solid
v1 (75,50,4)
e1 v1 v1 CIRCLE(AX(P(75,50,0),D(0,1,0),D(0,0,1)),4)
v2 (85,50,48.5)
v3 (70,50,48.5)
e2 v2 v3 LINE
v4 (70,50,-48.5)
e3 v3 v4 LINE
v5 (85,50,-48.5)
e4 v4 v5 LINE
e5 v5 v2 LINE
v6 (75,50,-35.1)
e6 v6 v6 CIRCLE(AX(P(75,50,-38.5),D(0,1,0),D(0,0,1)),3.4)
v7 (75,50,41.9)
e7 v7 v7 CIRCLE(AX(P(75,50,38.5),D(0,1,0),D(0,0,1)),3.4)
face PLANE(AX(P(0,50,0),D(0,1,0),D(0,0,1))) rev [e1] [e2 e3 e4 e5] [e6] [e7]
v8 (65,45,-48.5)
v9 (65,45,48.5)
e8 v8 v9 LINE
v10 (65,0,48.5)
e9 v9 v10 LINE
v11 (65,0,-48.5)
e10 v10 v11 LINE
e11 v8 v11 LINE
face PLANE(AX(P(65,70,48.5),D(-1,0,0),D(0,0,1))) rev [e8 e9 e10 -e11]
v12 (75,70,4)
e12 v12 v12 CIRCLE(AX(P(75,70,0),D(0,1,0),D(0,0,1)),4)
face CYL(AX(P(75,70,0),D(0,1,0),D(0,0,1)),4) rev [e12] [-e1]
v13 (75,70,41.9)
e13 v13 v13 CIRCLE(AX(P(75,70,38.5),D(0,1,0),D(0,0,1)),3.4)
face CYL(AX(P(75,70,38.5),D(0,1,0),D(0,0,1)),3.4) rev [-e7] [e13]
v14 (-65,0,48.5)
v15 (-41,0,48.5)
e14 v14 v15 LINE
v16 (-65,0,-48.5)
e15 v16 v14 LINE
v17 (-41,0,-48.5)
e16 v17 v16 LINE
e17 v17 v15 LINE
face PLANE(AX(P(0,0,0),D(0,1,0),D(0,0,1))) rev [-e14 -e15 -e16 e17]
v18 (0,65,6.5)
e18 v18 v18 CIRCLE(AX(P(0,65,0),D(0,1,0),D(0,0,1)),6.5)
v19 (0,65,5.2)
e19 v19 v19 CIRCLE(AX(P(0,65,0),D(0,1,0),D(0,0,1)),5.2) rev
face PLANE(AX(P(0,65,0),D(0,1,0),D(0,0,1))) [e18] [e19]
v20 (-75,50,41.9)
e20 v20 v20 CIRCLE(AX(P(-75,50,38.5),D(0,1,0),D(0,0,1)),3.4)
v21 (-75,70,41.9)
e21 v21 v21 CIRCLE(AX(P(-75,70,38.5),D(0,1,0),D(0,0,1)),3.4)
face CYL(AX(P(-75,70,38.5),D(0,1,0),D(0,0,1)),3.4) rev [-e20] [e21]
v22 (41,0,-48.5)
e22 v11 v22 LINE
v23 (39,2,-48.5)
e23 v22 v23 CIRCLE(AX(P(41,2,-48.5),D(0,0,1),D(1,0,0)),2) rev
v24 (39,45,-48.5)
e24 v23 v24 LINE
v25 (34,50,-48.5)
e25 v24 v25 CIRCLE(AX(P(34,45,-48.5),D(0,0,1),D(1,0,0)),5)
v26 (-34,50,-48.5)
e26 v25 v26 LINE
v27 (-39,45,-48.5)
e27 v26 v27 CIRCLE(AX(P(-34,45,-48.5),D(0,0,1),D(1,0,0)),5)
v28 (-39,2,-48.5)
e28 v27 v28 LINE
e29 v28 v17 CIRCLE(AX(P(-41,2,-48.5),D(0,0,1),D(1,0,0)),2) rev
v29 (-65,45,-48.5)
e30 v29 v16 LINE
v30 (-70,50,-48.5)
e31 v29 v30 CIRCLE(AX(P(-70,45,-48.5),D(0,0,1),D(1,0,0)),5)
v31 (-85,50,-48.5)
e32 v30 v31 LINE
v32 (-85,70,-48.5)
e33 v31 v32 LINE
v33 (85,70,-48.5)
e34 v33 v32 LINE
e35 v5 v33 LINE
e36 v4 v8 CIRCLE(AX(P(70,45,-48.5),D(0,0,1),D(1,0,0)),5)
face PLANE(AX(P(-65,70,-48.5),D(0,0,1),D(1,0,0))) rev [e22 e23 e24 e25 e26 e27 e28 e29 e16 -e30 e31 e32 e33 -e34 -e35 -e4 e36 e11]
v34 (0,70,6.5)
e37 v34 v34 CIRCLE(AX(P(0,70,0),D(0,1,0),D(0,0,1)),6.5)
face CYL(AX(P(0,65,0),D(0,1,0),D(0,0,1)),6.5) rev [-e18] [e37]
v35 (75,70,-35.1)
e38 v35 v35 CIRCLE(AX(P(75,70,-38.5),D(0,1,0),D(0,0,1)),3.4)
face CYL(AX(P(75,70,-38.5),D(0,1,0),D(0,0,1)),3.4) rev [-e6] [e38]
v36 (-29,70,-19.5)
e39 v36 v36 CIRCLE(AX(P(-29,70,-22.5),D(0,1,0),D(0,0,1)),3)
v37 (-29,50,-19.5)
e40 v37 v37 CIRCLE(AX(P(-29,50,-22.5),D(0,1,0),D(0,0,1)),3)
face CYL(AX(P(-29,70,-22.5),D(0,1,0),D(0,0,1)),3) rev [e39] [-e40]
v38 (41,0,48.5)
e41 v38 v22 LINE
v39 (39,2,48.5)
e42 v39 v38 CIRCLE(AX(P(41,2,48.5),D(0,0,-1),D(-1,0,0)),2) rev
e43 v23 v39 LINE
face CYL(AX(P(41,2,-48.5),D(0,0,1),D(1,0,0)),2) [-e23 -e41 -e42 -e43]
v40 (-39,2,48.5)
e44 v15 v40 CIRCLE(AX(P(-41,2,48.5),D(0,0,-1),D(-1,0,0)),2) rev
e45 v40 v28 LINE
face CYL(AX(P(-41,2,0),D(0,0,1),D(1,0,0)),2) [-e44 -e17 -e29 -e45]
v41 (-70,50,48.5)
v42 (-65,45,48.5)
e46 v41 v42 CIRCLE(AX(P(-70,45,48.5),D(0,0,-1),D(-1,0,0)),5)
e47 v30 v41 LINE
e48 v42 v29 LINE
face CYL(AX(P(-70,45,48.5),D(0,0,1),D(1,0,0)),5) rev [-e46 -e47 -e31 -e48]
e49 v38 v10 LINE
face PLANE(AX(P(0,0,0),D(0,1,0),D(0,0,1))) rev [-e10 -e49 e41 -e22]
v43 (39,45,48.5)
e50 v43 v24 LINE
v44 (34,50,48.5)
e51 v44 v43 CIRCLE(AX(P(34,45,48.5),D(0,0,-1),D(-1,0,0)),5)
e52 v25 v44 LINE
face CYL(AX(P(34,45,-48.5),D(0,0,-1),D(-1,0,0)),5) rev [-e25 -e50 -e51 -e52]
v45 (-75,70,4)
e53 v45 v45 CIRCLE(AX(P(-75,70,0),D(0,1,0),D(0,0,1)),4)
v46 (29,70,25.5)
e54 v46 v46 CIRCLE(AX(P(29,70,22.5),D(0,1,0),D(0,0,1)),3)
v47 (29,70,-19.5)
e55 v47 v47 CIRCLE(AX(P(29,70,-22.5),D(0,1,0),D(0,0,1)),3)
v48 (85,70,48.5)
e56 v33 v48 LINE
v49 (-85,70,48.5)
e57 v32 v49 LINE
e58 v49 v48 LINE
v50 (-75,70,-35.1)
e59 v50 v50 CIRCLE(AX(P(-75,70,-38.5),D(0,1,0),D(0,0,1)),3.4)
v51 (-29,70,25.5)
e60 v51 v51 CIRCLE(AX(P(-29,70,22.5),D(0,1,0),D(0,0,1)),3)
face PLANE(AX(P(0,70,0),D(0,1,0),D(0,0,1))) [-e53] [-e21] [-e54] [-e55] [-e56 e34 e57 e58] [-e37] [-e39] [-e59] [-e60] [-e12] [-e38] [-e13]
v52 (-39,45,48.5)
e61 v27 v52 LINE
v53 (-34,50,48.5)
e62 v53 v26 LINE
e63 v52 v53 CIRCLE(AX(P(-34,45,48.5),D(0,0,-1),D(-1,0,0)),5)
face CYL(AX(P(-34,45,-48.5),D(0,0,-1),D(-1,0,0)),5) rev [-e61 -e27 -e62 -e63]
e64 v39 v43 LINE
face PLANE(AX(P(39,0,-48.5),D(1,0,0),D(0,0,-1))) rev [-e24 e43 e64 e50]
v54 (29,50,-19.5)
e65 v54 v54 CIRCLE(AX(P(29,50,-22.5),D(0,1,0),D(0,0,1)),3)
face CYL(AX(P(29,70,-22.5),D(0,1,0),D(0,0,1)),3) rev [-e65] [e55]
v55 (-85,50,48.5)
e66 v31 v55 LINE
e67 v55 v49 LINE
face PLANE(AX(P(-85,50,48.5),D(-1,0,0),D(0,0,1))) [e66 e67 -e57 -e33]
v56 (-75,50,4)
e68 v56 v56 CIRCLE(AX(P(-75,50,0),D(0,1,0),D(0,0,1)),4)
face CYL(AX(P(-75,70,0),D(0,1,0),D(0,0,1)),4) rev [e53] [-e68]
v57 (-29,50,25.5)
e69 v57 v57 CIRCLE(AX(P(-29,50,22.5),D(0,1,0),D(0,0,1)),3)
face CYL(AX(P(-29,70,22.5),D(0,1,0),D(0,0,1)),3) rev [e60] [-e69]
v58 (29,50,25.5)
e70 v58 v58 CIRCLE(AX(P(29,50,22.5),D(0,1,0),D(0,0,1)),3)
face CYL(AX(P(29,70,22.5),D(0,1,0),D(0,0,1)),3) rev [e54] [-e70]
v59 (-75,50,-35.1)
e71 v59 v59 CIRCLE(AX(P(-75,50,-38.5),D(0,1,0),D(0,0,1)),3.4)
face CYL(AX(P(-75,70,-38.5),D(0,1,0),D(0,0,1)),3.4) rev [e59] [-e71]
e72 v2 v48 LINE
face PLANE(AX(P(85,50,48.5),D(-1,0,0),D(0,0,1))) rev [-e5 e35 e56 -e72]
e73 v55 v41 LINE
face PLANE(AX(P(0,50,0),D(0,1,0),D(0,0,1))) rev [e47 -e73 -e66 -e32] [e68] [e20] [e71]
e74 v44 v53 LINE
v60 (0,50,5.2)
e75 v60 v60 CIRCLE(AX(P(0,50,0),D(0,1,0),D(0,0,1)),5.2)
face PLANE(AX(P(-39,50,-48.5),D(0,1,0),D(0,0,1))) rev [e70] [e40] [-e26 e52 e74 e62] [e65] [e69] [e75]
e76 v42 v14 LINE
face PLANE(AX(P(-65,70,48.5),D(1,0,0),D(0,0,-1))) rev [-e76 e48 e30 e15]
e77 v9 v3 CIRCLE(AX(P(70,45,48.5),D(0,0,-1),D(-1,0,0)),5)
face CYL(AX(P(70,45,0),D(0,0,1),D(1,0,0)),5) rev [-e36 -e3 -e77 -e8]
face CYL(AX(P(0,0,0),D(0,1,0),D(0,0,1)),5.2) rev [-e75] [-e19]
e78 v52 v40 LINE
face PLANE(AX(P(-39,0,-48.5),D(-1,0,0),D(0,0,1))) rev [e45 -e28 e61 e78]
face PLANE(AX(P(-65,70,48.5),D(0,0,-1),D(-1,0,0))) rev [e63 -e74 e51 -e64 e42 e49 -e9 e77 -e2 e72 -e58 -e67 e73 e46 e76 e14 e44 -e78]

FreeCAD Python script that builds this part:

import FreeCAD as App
import Part
import Sketcher
from FreeCAD import Vector


def edges_at(feature, points):
    """Names of the edges that pass closest to the given points."""
    edges = feature.Shape.Edges
    near = lambda p: min(range(len(edges)), key=lambda i: edges[i].distToShape(Part.Vertex(*p))[0])
    return sorted({f"Edge{near(p) + 1}" for p in points})


def add_polygon(sketch, points):
    """Adds a closed chain of lines whose ends are joined by coincident constraints."""
    first, n = sketch.GeometryCount, len(points)
    for a, b in zip(points, points[1:] + points[:1]):
        sketch.addGeometry(Part.LineSegment(App.Vector(*a, 0), App.Vector(*b, 0)), False)
    for i in range(n):
        sketch.addConstraint(Sketcher.Constraint("Coincident", first + i, 2, first + (i + 1) % n, 1))

doc = App.newDocument("Part")
body = doc.addObject("PartDesign::Body", "Body")

# Sketch on XZ plane
sketch1 = body.newObject("Sketcher::SketchObject", "Sketch")
sketch1.AttachmentSupport = (doc.getObject("XZ_Plane"), [""])
sketch1.MapMode = "FlatFace"
add_polygon(sketch1, [(-65, -48.5), (-65, 48.5), (65, 48.5), (65, -48.5)])  # lines 0-3
sketch1.addConstraint([
    Sketcher.Constraint("Vertical", 0),
    Sketcher.Constraint("Horizontal", 1),
    Sketcher.Constraint("Vertical", 2),
    Sketcher.Constraint("Horizontal", 3),
    Sketcher.Constraint("Symmetric", 0, 2, 2, 2, -1, 1),
    Sketcher.Constraint("DistanceX", 1, 1, 1, 2, 130.0),
    Sketcher.Constraint("DistanceY", 0, 1, 0, 2, 97.0),
])
pad1 = body.newObject("PartDesign::Pad", "Pad")
pad1.Profile = sketch1
pad1.Length = 70
pad1.Reversed = True

# Sketch on XY plane
sketch2 = body.newObject("Sketcher::SketchObject", "Sketch001")
sketch2.AttachmentSupport = (doc.getObject("XY_Plane"), [""])
sketch2.MapMode = "FlatFace"
sketch2.AttachmentOffset = App.Placement(Vector(0, 0, 48.5), App.Rotation())
add_polygon(sketch2, [(-39, 50), (-39, 0), (39, 0), (39, 50)])  # lines 0-3
sketch2.addConstraint([
    Sketcher.Constraint("Vertical", 0),
    Sketcher.Constraint("Horizontal", 1),
    Sketcher.Constraint("Vertical", 2),
    Sketcher.Constraint("Horizontal", 3),
    Sketcher.Constraint("Symmetric", 0, 2, 1, 2, -1, 1),
    Sketcher.Constraint("DistanceX", 1, 1, 1, 2, 78.0),
    Sketcher.Constraint("DistanceY", 0, 2, 0, 1, 50.0),
])
pocket1 = body.newObject("PartDesign::Pocket", "Pocket")
pocket1.Profile = sketch2
pocket1.Type = "ThroughAll"
doc.recompute()

fillet = body.newObject("PartDesign::Fillet", "Fillet")
fillet.Base = (pocket1, edges_at(pocket1, [(-39, 50, 0), (39, 50, 0)]))
fillet.Radius = 5

# Sketch on XZ plane
sketch3 = body.newObject("Sketcher::SketchObject", "Sketch002")
sketch3.AttachmentSupport = (doc.getObject("XZ_Plane"), [""])
sketch3.MapMode = "FlatFace"
sketch3.AttachmentOffset = App.Placement(Vector(0, 0, -70), App.Rotation())
sketch3.addGeometry(Part.Circle(Vector(0, 0, 0), Vector(0, 0, 1), 5.2), False)
sketch3.addConstraint([
    Sketcher.Constraint("Coincident", 0, 3, -1, 1),
    Sketcher.Constraint("Diameter", 0, 10.4),
])
pocket2 = body.newObject("PartDesign::Pocket", "Pocket001")
pocket2.Profile = sketch3
pocket2.Type = "ThroughAll"
pocket2.Reversed = True

# Sketch on XZ plane
sketch4 = body.newObject("Sketcher::SketchObject", "Sketch003")
sketch4.AttachmentSupport = (doc.getObject("XZ_Plane"), [""])
sketch4.MapMode = "FlatFace"
sketch4.AttachmentOffset = App.Placement(Vector(0, 0, -70), App.Rotation())
sketch4.addGeometry(Part.Circle(Vector(0, 0, 0), Vector(0, 0, 1), 6.5), False)
sketch4.addConstraint([
    Sketcher.Constraint("Coincident", 0, 3, -1, 1),
    Sketcher.Constraint("Diameter", 0, 13.0),
])
pocket3 = body.newObject("PartDesign::Pocket", "Pocket002")
pocket3.Profile = sketch4
pocket3.Length = 5
pocket3.Reversed = True
doc.recompute()

fillet2 = body.newObject("PartDesign::Fillet", "Fillet001")
fillet2.Base = (pocket3, edges_at(pocket3, [(-39, 0, 0), (39, 0, 0)]))
fillet2.Radius = 2

# Sketch on XZ plane
sketch5 = body.newObject("Sketcher::SketchObject", "Sketch004")
sketch5.AttachmentSupport = (doc.getObject("XZ_Plane"), [""])
sketch5.MapMode = "FlatFace"
sketch5.AttachmentOffset = App.Placement(Vector(0, 0, -70), App.Rotation())
sketch5.addGeometry([
    Part.Circle(Vector(-29, -22.5, 0), Vector(0, 0, 1), 3),
    Part.Circle(Vector(29, -22.5, 0), Vector(0, 0, 1), 3),
    Part.Circle(Vector(29, 22.5, 0), Vector(0, 0, 1), 3),
    Part.Circle(Vector(-29, 22.5, 0), Vector(0, 0, 1), 3),
], False)
sketch5.addConstraint([
    Sketcher.Constraint("Equal", 0, 1),
    Sketcher.Constraint("Equal", 1, 2),
    Sketcher.Constraint("Equal", 2, 3),
    Sketcher.Constraint("Symmetric", 0, 3, 2, 3, -1, 1),
    Sketcher.Constraint("Symmetric", 1, 3, 3, 3, -1, 1),
    Sketcher.Constraint("Symmetric", 0, 3, 1, 3, -2),
    Sketcher.Constraint("Diameter", 0, 6.0),
    Sketcher.Constraint("DistanceX", 0, 3, -1, 1, 29.0),
    Sketcher.Constraint("DistanceY", 1, 3, 2, 3, 45.0),
])
doc.recompute()
hole = body.newObject("PartDesign::Hole", "Hole")
hole.Profile = sketch5
hole.ThreadType = "None"
hole.Diameter = 6
hole.DepthType = "ThroughAll"
hole.Reversed = True

# Sketch on XZ plane
sketch6 = body.newObject("Sketcher::SketchObject", "Sketch005")
sketch6.AttachmentSupport = (doc.getObject("XZ_Plane"), [""])
sketch6.MapMode = "FlatFace"
sketch6.AttachmentOffset = App.Placement(Vector(0, 0, -70), App.Rotation())
add_polygon(sketch6, [(-85, -48.5), (-85, 48.5), (-65, 48.5), (-65, -48.5)])  # lines 0-3
sketch6.addConstraint([
    Sketcher.Constraint("Vertical", 0),
    Sketcher.Constraint("Horizontal", 1),
    Sketcher.Constraint("Vertical", 2),
    Sketcher.Constraint("Horizontal", 3),
    Sketcher.Constraint("DistanceX", 1, 1, 1, 2, 20.0),
    Sketcher.Constraint("DistanceY", 0, 1, 0, 2, 97.0),
    Sketcher.Constraint("DistanceX", 0, 2, -1, 1, 85.0),
    Sketcher.Constraint("DistanceY", -1, 1, 0, 2, 48.5),
])
pad2 = body.newObject("PartDesign::Pad", "Pad001")
pad2.Profile = sketch6
pad2.Length = 20
doc.recompute()

mirrored = body.newObject("PartDesign::Mirrored", "Mirrored")
mirrored.Originals = [pad2]
mirrored.MirrorPlane = (doc.getObject("YZ_Plane"), [""])
body.Tip = mirrored
doc.recompute()

fillet3 = body.newObject("PartDesign::Fillet", "Fillet002")
fillet3.Base = (mirrored, edges_at(mirrored, [(65, 50, 0), (-65, 50, 0)]))
fillet3.Radius = 5

# Sketch on XZ plane
sketch7 = body.newObject("Sketcher::SketchObject", "Sketch006")
sketch7.AttachmentSupport = (doc.getObject("XZ_Plane"), [""])
sketch7.MapMode = "FlatFace"
sketch7.AttachmentOffset = App.Placement(Vector(0, 0, -70), App.Rotation())
sketch7.addGeometry([
    Part.Circle(Vector(-75, -38.5, 0), Vector(0, 0, 1), 3.4),
    Part.Circle(Vector(-75, 38.5, 0), Vector(0, 0, 1), 3.4),
    Part.Circle(Vector(75, 38.5, 0), Vector(0, 0, 1), 3.4),
    Part.Circle(Vector(75, -38.5, 0), Vector(0, 0, 1), 3.4),
], False)
sketch7.addConstraint([
    Sketcher.Constraint("Equal", 0, 1),
    Sketcher.Constraint("Equal", 1, 2),
    Sketcher.Constraint("Equal", 2, 3),
    Sketcher.Constraint("Symmetric", 0, 3, 2, 3, -1, 1),
    Sketcher.Constraint("Symmetric", 1, 3, 3, 3, -1, 1),
    Sketcher.Constraint("Symmetric", 1, 3, 2, 3, -2),
    Sketcher.Constraint("Diameter", 0, 6.8),
    Sketcher.Constraint("DistanceX", 0, 3, -1, 1, 75.0),
    Sketcher.Constraint("DistanceY", 0, 3, 1, 3, 77.0),
])
doc.recompute()
hole2 = body.newObject("PartDesign::Hole", "Hole001")
hole2.Profile = sketch7
hole2.ThreadType = "None"
hole2.Diameter = 6.8
hole2.DepthType = "ThroughAll"
hole2.Reversed = True

# Sketch on XZ plane
sketch8 = body.newObject("Sketcher::SketchObject", "Sketch007")
sketch8.AttachmentSupport = (doc.getObject("XZ_Plane"), [""])
sketch8.MapMode = "FlatFace"
sketch8.AttachmentOffset = App.Placement(Vector(0, 0, -70), App.Rotation())
sketch8.addGeometry([
    Part.Circle(Vector(-75, 0, 0), Vector(0, 0, 1), 4),
    Part.Circle(Vector(75, 0, 0), Vector(0, 0, 1), 4),
], False)
sketch8.addConstraint([
    Sketcher.Constraint("Equal", 0, 1),
    Sketcher.Constraint("Symmetric", 0, 3, 1, 3, -1, 1),
    Sketcher.Constraint("PointOnObject", 0, 3, -1),
    Sketcher.Constraint("Diameter", 0, 8.0),
    Sketcher.Constraint("DistanceX", 0, 3, -1, 1, 75.0),
])
doc.recompute()
hole3 = body.newObject("PartDesign::Hole", "Hole002")
hole3.Profile = sketch8
hole3.ThreadType = "None"
hole3.Diameter = 8
hole3.DepthType = "ThroughAll"
hole3.Reversed = True

doc.recompute()
